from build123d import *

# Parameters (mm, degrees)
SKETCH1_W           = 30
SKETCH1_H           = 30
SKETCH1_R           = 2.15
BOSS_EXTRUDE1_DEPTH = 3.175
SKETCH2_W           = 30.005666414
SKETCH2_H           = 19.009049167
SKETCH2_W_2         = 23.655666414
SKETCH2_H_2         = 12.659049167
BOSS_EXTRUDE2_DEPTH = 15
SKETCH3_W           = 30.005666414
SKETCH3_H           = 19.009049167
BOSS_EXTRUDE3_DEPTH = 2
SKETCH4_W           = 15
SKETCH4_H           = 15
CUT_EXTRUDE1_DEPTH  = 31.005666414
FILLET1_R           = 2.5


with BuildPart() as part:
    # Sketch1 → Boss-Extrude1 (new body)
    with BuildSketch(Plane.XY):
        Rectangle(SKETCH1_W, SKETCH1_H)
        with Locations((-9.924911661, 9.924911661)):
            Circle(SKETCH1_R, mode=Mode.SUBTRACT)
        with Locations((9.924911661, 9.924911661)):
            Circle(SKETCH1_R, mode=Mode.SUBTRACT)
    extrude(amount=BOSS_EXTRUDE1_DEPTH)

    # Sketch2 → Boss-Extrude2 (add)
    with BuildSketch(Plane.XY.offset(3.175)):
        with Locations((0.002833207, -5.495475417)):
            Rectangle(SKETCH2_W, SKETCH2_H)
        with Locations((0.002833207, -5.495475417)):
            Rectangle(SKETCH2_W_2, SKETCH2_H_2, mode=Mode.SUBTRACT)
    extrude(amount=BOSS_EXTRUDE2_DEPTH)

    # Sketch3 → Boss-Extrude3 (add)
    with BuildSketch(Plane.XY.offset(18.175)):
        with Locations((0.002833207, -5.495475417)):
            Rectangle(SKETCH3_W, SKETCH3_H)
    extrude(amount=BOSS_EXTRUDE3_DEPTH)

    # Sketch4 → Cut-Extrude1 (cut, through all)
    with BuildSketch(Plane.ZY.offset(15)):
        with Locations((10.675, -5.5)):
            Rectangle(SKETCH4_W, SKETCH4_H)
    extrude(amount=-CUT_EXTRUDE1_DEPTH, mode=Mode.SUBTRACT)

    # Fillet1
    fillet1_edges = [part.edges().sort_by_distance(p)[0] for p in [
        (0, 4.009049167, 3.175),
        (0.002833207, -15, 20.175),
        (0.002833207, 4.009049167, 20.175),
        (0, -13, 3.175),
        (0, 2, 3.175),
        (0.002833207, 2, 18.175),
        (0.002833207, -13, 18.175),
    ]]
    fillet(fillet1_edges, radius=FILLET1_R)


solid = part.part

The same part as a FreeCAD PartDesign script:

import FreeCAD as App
import Part
import Sketcher

V = App.Vector
Q = App.Units.Quantity


def edges_at(feature, points):
    """Names of the edges that pass closest to the given points."""
    edges = feature.Shape.Edges
    near = lambda p: min(range(len(edges)), key=lambda i: edges[i].distToShape(Part.Vertex(*p))[0])
    return sorted({f"Edge{near(p) + 1}" for p in points})


def add_polygon(sketch, points):
    """Adds a closed chain of lines whose ends are joined by coincident constraints."""
    first, n = sketch.GeometryCount, len(points)
    for a, b in zip(points, points[1:] + points[:1]):
        sketch.addGeometry(Part.LineSegment(App.Vector(*a, 0), App.Vector(*b, 0)), False)
    for i in range(n):
        sketch.addConstraint(Sketcher.Constraint("Coincident", first + i, 2, first + (i + 1) % n, 1))

doc = App.newDocument("Part")
body = doc.addObject("PartDesign::Body", "Body")

sketch1 = body.newObject("Sketcher::SketchObject", "Sketch")
sketch1.AttachmentSupport = (doc.getObject("XY_Plane"), [""])
sketch1.MapMode = "FlatFace"
add_polygon(sketch1, [(-15, 15), (-15, -15), (15, -15), (15, 15)])
sketch1.addGeometry(Part.Circle(V(-9.9, 9.9, 0), V(0, 0, 1), 2.1), False)
sketch1.addGeometry(Part.Circle(V(9.9, 9.9, 0), V(0, 0, 1), 2.1), False)
sketch1.addConstraint([
    Sketcher.Constraint("Vertical", 0),
    Sketcher.Constraint("Horizontal", 1),
    Sketcher.Constraint("Vertical", 2),
    Sketcher.Constraint("Horizontal", 3),
    Sketcher.Constraint("Equal", 4, 5),
    Sketcher.Constraint("Symmetric", 0, 2, 2, 2, -1, 1),
    Sketcher.Constraint("Symmetric", 4, 3, 5, 3, -2),
    Sketcher.Constraint("Equal", 3, 0),
    Sketcher.Constraint("Diameter", 4, Q("4.3 mm")),
    Sketcher.Constraint("DistanceX", 1, 1, 1, 2, Q("30 mm")),
    Sketcher.Constraint("DistanceX", 4, 3, -1, 1, Q("9.924912 mm")),
    Sketcher.Constraint("DistanceY", -1, 1, 4, 3, Q("9.924912 mm")),
])
pad1 = body.newObject("PartDesign::Pad", "Pad")
pad1.Profile = sketch1
pad1.Length = 3.175

sketch2 = body.newObject("Sketcher::SketchObject", "Sketch001")
sketch2.AttachmentSupport = (doc.getObject("XY_Plane"), [""])
sketch2.MapMode = "FlatFace"
sketch2.AttachmentOffset = App.Placement(V(0, 0, 3.175), App.Rotation())
add_polygon(sketch2, [(-15, 4), (-15, -15), (15, -15), (15, 4)])
add_polygon(sketch2, [(12, -12), (-12, -12), (-12, 1), (12, 1)])
sketch2.addConstraint([
    Sketcher.Constraint("Vertical", 0),
    Sketcher.Constraint("Horizontal", 1),
    Sketcher.Constraint("Vertical", 2),
    Sketcher.Constraint("Horizontal", 3),
    Sketcher.Constraint("Horizontal", 4),
    Sketcher.Constraint("Vertical", 5),
    Sketcher.Constraint("Horizontal", 6),
    Sketcher.Constraint("Vertical", 7),
    Sketcher.Constraint("DistanceX", 0, 2, -1, 1, Q("15 mm")),
    Sketcher.Constraint("DistanceY", 0, 2, -1, 1, Q("15 mm")),
    Sketcher.Constraint("DistanceX", 4, 2, -1, 1, Q("11.825 mm")),
    Sketcher.Constraint("DistanceY", 4, 2, -1, 1, Q("11.825 mm")),
    Sketcher.Constraint("DistanceY", 5, 2, 3, 2, Q("3.175 mm")),
    Sketcher.Constraint("DistanceX", 6, 2, 2, 2, Q("3.175 mm")),
    Sketcher.Constraint("DistanceY", 0, 2, 0, 1, Q("19.009049 mm")),
    Sketcher.Constraint("DistanceX", 1, 1, 1, 2, Q("30.005666 mm")),
])
pad2 = body.newObject("PartDesign::Pad", "Pad001")
pad2.Profile = sketch2
pad2.Length = 15

sketch3 = body.newObject("Sketcher::SketchObject", "Sketch002")
sketch3.AttachmentSupport = (doc.getObject("XY_Plane"), [""])
sketch3.MapMode = "FlatFace"
sketch3.AttachmentOffset = App.Placement(V(0, 0, 18.175), App.Rotation())
add_polygon(sketch3, [(-15, 4), (-15, -15), (15, -15), (15, 4)])
sketch3.addConstraint([
    Sketcher.Constraint("Vertical", 0),
    Sketcher.Constraint("Horizontal", 1),
    Sketcher.Constraint("Vertical", 2),
    Sketcher.Constraint("Horizontal", 3),
    Sketcher.Constraint("DistanceX", 0, 2, -1, 1, Q("15 mm")),
    Sketcher.Constraint("DistanceY", 0, 2, -1, 1, Q("15 mm")),
    Sketcher.Constraint("DistanceY", 0, 2, 0, 1, Q("19.009049 mm")),
    Sketcher.Constraint("DistanceX", 1, 1, 1, 2, Q("30.005666 mm")),
])
pad3 = body.newObject("PartDesign::Pad", "Pad002")
pad3.Profile = sketch3
pad3.Length = 2

sketch4 = body.newObject("Sketcher::SketchObject", "Sketch003")
sketch4.AttachmentSupport = (doc.getObject("YZ_Plane"), [""])
sketch4.MapMode = "FlatFace"
sketch4.AttachmentOffset = App.Placement(V(0, 0, -15), App.Rotation())
add_polygon(sketch4, [(2, 3), (-13, 3), (-13, 18), (2, 18)])
sketch4.addConstraint([
    Sketcher.Constraint("Horizontal", 0),
    Sketcher.Constraint("Vertical", 1),
    Sketcher.Constraint("Horizontal", 2),
    Sketcher.Constraint("Vertical", 3),
    Sketcher.Constraint("Equal", 2, 1),
    Sketcher.Constraint("DistanceX", 0, 2, 0, 1, Q("15 mm")),
    Sketcher.Constraint("DistanceX", 0, 2, -1, 1, Q("13 mm")),
    Sketcher.Constraint("DistanceY", -1, 1, 0, 2, Q("3.175 mm")),
])
pocket1 = body.newObject("PartDesign::Pocket", "Pocket")
pocket1.Profile = sketch4
pocket1.Type = "ThroughAll"
pocket1.Reversed = True
doc.recompute()

fillet = body.newObject("PartDesign::Fillet", "Fillet")
fillet.Base = (pocket1, edges_at(pocket1, [
    (0, 4.009, 3.175),
    (0.003, -15, 20.175),
    (0.003, 4.009, 20.175),
    (0, -13, 3.175),
    (0, 2, 3.175),
    (0.003, 2, 18.175),
    (0.003, -13, 18.175),
]))
fillet.Radius = 2.5

doc.recompute()
